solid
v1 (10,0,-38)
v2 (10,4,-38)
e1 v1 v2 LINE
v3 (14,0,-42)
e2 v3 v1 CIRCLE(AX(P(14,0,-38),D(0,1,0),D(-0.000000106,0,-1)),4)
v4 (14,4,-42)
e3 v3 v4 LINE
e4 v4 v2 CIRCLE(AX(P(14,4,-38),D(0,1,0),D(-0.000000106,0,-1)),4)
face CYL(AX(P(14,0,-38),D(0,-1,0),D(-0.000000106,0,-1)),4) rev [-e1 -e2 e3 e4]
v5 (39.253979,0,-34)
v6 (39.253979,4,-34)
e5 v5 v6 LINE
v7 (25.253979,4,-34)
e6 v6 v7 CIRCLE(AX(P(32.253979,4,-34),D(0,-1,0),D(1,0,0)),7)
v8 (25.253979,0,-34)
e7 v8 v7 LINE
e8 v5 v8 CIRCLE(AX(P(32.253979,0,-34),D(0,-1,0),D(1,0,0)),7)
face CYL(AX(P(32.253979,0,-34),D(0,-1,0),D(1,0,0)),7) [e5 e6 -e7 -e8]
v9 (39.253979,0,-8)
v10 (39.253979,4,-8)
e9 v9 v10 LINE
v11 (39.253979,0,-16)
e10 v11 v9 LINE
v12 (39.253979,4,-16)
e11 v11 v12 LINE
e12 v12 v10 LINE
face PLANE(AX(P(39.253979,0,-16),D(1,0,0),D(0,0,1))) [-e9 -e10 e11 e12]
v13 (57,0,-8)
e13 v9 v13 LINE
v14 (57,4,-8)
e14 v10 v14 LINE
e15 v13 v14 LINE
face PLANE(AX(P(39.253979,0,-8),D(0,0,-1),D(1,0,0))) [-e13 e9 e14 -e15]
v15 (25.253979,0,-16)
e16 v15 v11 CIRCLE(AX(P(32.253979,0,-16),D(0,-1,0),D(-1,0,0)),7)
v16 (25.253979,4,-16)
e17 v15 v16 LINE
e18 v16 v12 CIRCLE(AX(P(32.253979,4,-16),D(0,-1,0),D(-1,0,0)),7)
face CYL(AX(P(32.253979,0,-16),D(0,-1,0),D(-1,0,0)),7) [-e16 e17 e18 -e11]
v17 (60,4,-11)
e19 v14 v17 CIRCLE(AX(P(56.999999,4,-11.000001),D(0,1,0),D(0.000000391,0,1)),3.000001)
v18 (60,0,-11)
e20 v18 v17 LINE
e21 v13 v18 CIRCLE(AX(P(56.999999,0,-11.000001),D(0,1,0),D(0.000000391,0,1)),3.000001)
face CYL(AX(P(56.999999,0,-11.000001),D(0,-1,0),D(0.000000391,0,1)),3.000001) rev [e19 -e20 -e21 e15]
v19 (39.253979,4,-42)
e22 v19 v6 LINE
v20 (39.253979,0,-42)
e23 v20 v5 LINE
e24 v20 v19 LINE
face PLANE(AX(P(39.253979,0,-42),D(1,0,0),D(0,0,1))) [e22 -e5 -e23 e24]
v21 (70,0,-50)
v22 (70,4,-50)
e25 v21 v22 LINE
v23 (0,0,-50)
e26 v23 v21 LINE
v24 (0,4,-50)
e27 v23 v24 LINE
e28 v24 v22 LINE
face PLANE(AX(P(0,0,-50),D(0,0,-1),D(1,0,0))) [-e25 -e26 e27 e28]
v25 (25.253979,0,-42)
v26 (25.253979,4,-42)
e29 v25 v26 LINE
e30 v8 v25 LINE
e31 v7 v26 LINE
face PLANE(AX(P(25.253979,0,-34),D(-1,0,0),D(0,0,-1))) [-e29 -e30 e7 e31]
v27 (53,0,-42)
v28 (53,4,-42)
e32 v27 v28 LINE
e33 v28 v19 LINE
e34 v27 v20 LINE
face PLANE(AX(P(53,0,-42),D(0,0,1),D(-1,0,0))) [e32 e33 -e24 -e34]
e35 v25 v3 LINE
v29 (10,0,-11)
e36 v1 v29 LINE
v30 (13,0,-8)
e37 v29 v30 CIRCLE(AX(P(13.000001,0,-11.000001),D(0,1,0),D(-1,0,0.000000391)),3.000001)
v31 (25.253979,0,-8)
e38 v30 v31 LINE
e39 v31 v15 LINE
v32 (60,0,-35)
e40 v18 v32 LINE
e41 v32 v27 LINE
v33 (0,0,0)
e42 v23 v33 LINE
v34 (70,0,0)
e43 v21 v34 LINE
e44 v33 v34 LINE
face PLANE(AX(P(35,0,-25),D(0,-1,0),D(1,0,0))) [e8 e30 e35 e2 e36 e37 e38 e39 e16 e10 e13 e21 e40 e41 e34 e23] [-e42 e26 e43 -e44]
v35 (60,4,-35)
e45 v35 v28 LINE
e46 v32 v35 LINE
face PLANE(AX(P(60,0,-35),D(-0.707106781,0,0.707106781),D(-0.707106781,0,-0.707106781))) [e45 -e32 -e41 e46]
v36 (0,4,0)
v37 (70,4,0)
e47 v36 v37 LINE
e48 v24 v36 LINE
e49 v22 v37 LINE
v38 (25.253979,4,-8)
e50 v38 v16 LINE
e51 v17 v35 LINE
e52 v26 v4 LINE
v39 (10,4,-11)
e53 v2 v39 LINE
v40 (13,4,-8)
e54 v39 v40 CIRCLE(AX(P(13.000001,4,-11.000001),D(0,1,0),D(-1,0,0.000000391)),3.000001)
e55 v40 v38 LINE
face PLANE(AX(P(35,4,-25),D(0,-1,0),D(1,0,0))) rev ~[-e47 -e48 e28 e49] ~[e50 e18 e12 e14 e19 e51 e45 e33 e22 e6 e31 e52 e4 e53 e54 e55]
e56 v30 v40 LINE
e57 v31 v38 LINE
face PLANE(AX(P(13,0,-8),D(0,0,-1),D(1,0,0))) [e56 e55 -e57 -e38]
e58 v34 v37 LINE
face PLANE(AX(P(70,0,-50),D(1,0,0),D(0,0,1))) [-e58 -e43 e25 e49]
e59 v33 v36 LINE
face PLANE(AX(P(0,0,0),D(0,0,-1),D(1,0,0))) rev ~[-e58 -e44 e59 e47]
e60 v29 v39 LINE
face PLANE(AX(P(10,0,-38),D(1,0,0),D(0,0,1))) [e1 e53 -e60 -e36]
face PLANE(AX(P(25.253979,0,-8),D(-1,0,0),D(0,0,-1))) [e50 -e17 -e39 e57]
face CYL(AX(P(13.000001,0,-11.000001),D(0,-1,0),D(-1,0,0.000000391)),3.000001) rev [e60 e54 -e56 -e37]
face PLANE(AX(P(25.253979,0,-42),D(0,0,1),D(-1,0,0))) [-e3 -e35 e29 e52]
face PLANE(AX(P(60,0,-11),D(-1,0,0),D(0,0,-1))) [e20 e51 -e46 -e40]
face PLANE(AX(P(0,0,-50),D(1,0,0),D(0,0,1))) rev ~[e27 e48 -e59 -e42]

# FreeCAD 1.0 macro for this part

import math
import FreeCAD as App
import Part
import Sketcher

V = App.Vector
Q = App.Units.Quantity


def add_polygon(sketch, points):
    """Adds a closed chain of lines whose ends are joined by coincident constraints."""
    first, n = sketch.GeometryCount, len(points)
    for a, b in zip(points, points[1:] + points[:1]):
        sketch.addGeometry(Part.LineSegment(App.Vector(*a, 0), App.Vector(*b, 0)), False)
    for i in range(n):
        sketch.addConstraint(Sketcher.Constraint("Coincident", first + i, 2, first + (i + 1) % n, 1))

doc = App.newDocument("Part")
params = doc.addObject("Spreadsheet::Sheet", "Params")
for row, (alias, value) in enumerate([
    ("sketch1_radius", "3.000001 mm"),
    ("sketch1_radius2", "7 mm"),
    ("sketch1_radius3", "4 mm"),
    ("sketch1_width", "70 mm"),
    ("sketch1_height", "50 mm"),
    ("pad1_length", "4 mm"),
], start=1):
    params.set(f"A{row}", alias)
    params.set(f"B{row}", "=" + value)
    params.setAlias(f"B{row}", alias)

body = doc.addObject("PartDesign::Body", "Body")

# Sketch on XZ plane
sketch1 = doc.addObject("Sketcher::SketchObject", "Sketch")
body.addObject(sketch1)
sketch1.AttachmentSupport = (doc.XZ_Plane, [""])
sketch1.MapMode = "FlatFace"
add_polygon(sketch1, [(0, 0), (0, -50), (70, -50), (70, 0)])  # lines 0-3
sketch1.addGeometry(Part.LineSegment(V(10, -38, 0), V(10, -11, 0)), False)  # 4
sketch1.addGeometry(Part.ArcOfCircle(Part.Circle(V(13, -11, 0), V(0, 0, 1), 3), math.radians(90), math.radians(180)), False)  # 5
sketch1.addGeometry(Part.LineSegment(V(13, -8, 0), V(25.3, -8, 0)), False)  # 6
sketch1.addGeometry(Part.LineSegment(V(25.3, -8, 0), V(25.3, -16, 0)), False)  # 7
sketch1.addGeometry(Part.ArcOfCircle(Part.Circle(V(32.3, -16, 0), V(0, 0, 1), 7), math.radians(180), math.radians(360)), False)  # 8
sketch1.addGeometry(Part.LineSegment(V(39.3, -16, 0), V(39.3, -8, 0)), False)  # 9
sketch1.addGeometry(Part.LineSegment(V(39.3, -8, 0), V(57, -8, 0)), False)  # 10
sketch1.addGeometry(Part.ArcOfCircle(Part.Circle(V(57, -11, 0), V(0, 0, 1), 3), math.radians(0), math.radians(90)), False)  # 11
sketch1.addGeometry(Part.LineSegment(V(60, -11, 0), V(60, -35, 0)), False)  # 12
sketch1.addGeometry(Part.LineSegment(V(60, -35, 0), V(53, -42, 0)), False)  # 13
sketch1.addGeometry(Part.LineSegment(V(53, -42, 0), V(39.3, -42, 0)), False)  # 14
sketch1.addGeometry(Part.LineSegment(V(39.3, -42, 0), V(39.3, -34, 0)), False)  # 15
sketch1.addGeometry(Part.ArcOfCircle(Part.Circle(V(32.3, -34, 0), V(0, 0, 1), 7), math.radians(0), math.radians(180)), False)  # 16
sketch1.addGeometry(Part.LineSegment(V(25.3, -34, 0), V(25.3, -42, 0)), False)  # 17
sketch1.addGeometry(Part.LineSegment(V(25.3, -42, 0), V(14, -42, 0)), False)  # 18
sketch1.addGeometry(Part.ArcOfCircle(Part.Circle(V(14, -38, 0), V(0, 0, 1), 4), math.radians(-180), math.radians(-90)), False)  # 19
sketch1.addConstraint(Sketcher.Constraint("Tangent", 4, 2, 5, 2))
sketch1.addConstraint(Sketcher.Constraint("Tangent", 5, 1, 6, 1))
sketch1.addConstraint(Sketcher.Constraint("Coincident", 6, 2, 7, 1))
sketch1.addConstraint(Sketcher.Constraint("Tangent", 7, 2, 8, 1))
sketch1.addConstraint(Sketcher.Constraint("Tangent", 8, 2, 9, 1))
sketch1.addConstraint(Sketcher.Constraint("Coincident", 9, 2, 10, 1))
sketch1.addConstraint(Sketcher.Constraint("Tangent", 10, 2, 11, 2))
sketch1.addConstraint(Sketcher.Constraint("Tangent", 11, 1, 12, 1))
sketch1.addConstraint(Sketcher.Constraint("Coincident", 12, 2, 13, 1))
sketch1.addConstraint(Sketcher.Constraint("Coincident", 13, 2, 14, 1))
sketch1.addConstraint(Sketcher.Constraint("Coincident", 14, 2, 15, 1))
sketch1.addConstraint(Sketcher.Constraint("Tangent", 15, 2, 16, 1))
sketch1.addConstraint(Sketcher.Constraint("Tangent", 16, 2, 17, 1))
sketch1.addConstraint(Sketcher.Constraint("Coincident", 17, 2, 18, 1))
sketch1.addConstraint(Sketcher.Constraint("Tangent", 18, 2, 19, 2))
sketch1.addConstraint(Sketcher.Constraint("Tangent", 19, 1, 4, 1))
sketch1.addConstraint(Sketcher.Constraint("Vertical", 0))
sketch1.addConstraint(Sketcher.Constraint("Horizontal", 1))
sketch1.addConstraint(Sketcher.Constraint("Vertical", 2))
sketch1.addConstraint(Sketcher.Constraint("Horizontal", 3))
sketch1.addConstraint(Sketcher.Constraint("Vertical", 4))
sketch1.addConstraint(Sketcher.Constraint("Horizontal", 6))
sketch1.addConstraint(Sketcher.Constraint("Vertical", 7))
sketch1.addConstraint(Sketcher.Constraint("Vertical", 9))
sketch1.addConstraint(Sketcher.Constraint("Horizontal", 10))
sketch1.addConstraint(Sketcher.Constraint("Vertical", 12))
sketch1.addConstraint(Sketcher.Constraint("Horizontal", 14))
sketch1.addConstraint(Sketcher.Constraint("Vertical", 15))
sketch1.addConstraint(Sketcher.Constraint("Vertical", 17))
sketch1.addConstraint(Sketcher.Constraint("Horizontal", 18))
sketch1.addConstraint(Sketcher.Constraint("Coincident", 3, 2, -1, 1))
sketch1.addConstraint(Sketcher.Constraint("Equal", 5, 11))
sketch1.addConstraint(Sketcher.Constraint("Equal", 8, 16))
sketch1.addConstraint(Sketcher.Constraint("Horizontal", 5, 3, 11, 3))
sketch1.addConstraint(Sketcher.Constraint("Horizontal", 14, 2, 17, 2))
sketch1.addConstraint(Sketcher.Constraint("Vertical", 8, 3, 16, 3))
sketch1.addConstraint(Sketcher.Constraint("Equal", 9, 15))
sketch1.addConstraint(Sketcher.Constraint("Radius", 5, Q("3.000001 mm")))
sketch1.addConstraint(Sketcher.Constraint("Radius", 8, Q("7 mm")))
sketch1.addConstraint(Sketcher.Constraint("Radius", 19, Q("4 mm")))
sketch1.addConstraint(Sketcher.Constraint("DistanceX", 1, 1, 1, 2, Q("70 mm")))
sketch1.addConstraint(Sketcher.Constraint("DistanceY", 0, 2, 0, 1, Q("50 mm")))
sketch1.addConstraint(Sketcher.Constraint("DistanceY", 4, 1, 4, 2, Q("27 mm")))
sketch1.addConstraint(Sketcher.Constraint("DistanceY", 7, 2, 7, 1, Q("8 mm")))
sketch1.addConstraint(Sketcher.Constraint("DistanceY", 12, 2, 12, 1, Q("24 mm")))
sketch1.addConstraint(Sketcher.Constraint("Angle", 13, Q("-135 deg")))
sketch1.addConstraint(Sketcher.Constraint("DistanceX", -1, 1, 5, 3, Q("13.000001 mm")))
sketch1.addConstraint(Sketcher.Constraint("DistanceY", 5, 3, -1, 1, Q("11.000001 mm")))
sketch1.addConstraint(Sketcher.Constraint("DistanceX", -1, 1, 11, 3, Q("56.999999 mm")))
sketch1.addConstraint(Sketcher.Constraint("DistanceX", 6, 1, 6, 2, Q("12.253979 mm")))
sketch1.setExpression("Constraints[41]", "Params.sketch1_radius")
sketch1.setExpression("Constraints[42]", "Params.sketch1_radius2")
sketch1.setExpression("Constraints[43]", "Params.sketch1_radius3")
sketch1.setExpression("Constraints[44]", "Params.sketch1_width")
sketch1.setExpression("Constraints[45]", "Params.sketch1_height")
pad1 = doc.addObject("PartDesign::Pad", "Pad")
body.addObject(pad1)
pad1.Profile = sketch1
pad1.setExpression("Length", "Params.pad1_length")
pad1.Reversed = True

doc.recompute()
